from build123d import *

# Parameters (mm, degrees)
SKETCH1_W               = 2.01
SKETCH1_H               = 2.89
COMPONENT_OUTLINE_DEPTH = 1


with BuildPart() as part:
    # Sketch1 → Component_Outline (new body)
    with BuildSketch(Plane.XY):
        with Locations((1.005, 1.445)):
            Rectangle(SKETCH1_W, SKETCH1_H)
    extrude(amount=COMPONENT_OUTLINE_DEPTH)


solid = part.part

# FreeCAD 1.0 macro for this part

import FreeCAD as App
import Part
import Sketcher

doc = App.newDocument("Part")
params = doc.addObject("Spreadsheet::Sheet", "Params")
for row, (alias, value) in enumerate([
    ("sketch1_width", "2.01 mm"),
    ("sketch1_height", "2.89 mm"),
    ("pad1_length", "1 mm"),
], start=1):
    params.set(f"A{row}", alias)
    params.set(f"B{row}", "=" + value)
    params.setAlias(f"B{row}", alias)

body = doc.addObject("PartDesign::Body", "Body")

# Sketch on XY plane
sketch1 = body.newObject("Sketcher::SketchObject", "Sketch")
sketch1.AttachmentSupport = (doc.getObject("XY_Plane"), [""])
sketch1.MapMode = "FlatFace"
sketch1.addGeometry(Part.LineSegment(App.Vector(0, 2.9, 0), App.Vector(0, 0, 0)), False)
sketch1.addGeometry(Part.LineSegment(App.Vector(0, 0, 0), App.Vector(2, 0, 0)), False)
sketch1.addGeometry(Part.LineSegment(App.Vector(2, 0, 0), App.Vector(2, 2.9, 0)), False)
sketch1.addGeometry(Part.LineSegment(App.Vector(2, 2.9, 0), App.Vector(0, 2.9, 0)), False)
sketch1.addConstraint(Sketcher.Constraint("Coincident", 0, 2, 1, 1))
sketch1.addConstraint(Sketcher.Constraint("Coincident", 1, 2, 2, 1))
sketch1.addConstraint(Sketcher.Constraint("Coincident", 2, 2, 3, 1))
sketch1.addConstraint(Sketcher.Constraint("Coincident", 3, 2, 0, 1))
sketch1.addConstraint(Sketcher.Constraint("Vertical", 0))
sketch1.addConstraint(Sketcher.Constraint("Horizontal", 1))
sketch1.addConstraint(Sketcher.Constraint("Vertical", 2))
sketch1.addConstraint(Sketcher.Constraint("Horizontal", 3))
sketch1.addConstraint(Sketcher.Constraint("Coincident", 0, 2, -1, 1))
sketch1.addConstraint(Sketcher.Constraint("DistanceX", 1, 1, 1, 2, 2.01))
sketch1.addConstraint(Sketcher.Constraint("DistanceY", 0, 2, 0, 1, 2.89))
sketch1.setExpression("Constraints[9]", "Params.sketch1_width")
sketch1.setExpression("Constraints[10]", "Params.sketch1_height")
pad1 = body.newObject("PartDesign::Pad", "Pad")
pad1.Profile = sketch1
pad1.setExpression("Length", "Params.pad1_length")

doc.recompute()
